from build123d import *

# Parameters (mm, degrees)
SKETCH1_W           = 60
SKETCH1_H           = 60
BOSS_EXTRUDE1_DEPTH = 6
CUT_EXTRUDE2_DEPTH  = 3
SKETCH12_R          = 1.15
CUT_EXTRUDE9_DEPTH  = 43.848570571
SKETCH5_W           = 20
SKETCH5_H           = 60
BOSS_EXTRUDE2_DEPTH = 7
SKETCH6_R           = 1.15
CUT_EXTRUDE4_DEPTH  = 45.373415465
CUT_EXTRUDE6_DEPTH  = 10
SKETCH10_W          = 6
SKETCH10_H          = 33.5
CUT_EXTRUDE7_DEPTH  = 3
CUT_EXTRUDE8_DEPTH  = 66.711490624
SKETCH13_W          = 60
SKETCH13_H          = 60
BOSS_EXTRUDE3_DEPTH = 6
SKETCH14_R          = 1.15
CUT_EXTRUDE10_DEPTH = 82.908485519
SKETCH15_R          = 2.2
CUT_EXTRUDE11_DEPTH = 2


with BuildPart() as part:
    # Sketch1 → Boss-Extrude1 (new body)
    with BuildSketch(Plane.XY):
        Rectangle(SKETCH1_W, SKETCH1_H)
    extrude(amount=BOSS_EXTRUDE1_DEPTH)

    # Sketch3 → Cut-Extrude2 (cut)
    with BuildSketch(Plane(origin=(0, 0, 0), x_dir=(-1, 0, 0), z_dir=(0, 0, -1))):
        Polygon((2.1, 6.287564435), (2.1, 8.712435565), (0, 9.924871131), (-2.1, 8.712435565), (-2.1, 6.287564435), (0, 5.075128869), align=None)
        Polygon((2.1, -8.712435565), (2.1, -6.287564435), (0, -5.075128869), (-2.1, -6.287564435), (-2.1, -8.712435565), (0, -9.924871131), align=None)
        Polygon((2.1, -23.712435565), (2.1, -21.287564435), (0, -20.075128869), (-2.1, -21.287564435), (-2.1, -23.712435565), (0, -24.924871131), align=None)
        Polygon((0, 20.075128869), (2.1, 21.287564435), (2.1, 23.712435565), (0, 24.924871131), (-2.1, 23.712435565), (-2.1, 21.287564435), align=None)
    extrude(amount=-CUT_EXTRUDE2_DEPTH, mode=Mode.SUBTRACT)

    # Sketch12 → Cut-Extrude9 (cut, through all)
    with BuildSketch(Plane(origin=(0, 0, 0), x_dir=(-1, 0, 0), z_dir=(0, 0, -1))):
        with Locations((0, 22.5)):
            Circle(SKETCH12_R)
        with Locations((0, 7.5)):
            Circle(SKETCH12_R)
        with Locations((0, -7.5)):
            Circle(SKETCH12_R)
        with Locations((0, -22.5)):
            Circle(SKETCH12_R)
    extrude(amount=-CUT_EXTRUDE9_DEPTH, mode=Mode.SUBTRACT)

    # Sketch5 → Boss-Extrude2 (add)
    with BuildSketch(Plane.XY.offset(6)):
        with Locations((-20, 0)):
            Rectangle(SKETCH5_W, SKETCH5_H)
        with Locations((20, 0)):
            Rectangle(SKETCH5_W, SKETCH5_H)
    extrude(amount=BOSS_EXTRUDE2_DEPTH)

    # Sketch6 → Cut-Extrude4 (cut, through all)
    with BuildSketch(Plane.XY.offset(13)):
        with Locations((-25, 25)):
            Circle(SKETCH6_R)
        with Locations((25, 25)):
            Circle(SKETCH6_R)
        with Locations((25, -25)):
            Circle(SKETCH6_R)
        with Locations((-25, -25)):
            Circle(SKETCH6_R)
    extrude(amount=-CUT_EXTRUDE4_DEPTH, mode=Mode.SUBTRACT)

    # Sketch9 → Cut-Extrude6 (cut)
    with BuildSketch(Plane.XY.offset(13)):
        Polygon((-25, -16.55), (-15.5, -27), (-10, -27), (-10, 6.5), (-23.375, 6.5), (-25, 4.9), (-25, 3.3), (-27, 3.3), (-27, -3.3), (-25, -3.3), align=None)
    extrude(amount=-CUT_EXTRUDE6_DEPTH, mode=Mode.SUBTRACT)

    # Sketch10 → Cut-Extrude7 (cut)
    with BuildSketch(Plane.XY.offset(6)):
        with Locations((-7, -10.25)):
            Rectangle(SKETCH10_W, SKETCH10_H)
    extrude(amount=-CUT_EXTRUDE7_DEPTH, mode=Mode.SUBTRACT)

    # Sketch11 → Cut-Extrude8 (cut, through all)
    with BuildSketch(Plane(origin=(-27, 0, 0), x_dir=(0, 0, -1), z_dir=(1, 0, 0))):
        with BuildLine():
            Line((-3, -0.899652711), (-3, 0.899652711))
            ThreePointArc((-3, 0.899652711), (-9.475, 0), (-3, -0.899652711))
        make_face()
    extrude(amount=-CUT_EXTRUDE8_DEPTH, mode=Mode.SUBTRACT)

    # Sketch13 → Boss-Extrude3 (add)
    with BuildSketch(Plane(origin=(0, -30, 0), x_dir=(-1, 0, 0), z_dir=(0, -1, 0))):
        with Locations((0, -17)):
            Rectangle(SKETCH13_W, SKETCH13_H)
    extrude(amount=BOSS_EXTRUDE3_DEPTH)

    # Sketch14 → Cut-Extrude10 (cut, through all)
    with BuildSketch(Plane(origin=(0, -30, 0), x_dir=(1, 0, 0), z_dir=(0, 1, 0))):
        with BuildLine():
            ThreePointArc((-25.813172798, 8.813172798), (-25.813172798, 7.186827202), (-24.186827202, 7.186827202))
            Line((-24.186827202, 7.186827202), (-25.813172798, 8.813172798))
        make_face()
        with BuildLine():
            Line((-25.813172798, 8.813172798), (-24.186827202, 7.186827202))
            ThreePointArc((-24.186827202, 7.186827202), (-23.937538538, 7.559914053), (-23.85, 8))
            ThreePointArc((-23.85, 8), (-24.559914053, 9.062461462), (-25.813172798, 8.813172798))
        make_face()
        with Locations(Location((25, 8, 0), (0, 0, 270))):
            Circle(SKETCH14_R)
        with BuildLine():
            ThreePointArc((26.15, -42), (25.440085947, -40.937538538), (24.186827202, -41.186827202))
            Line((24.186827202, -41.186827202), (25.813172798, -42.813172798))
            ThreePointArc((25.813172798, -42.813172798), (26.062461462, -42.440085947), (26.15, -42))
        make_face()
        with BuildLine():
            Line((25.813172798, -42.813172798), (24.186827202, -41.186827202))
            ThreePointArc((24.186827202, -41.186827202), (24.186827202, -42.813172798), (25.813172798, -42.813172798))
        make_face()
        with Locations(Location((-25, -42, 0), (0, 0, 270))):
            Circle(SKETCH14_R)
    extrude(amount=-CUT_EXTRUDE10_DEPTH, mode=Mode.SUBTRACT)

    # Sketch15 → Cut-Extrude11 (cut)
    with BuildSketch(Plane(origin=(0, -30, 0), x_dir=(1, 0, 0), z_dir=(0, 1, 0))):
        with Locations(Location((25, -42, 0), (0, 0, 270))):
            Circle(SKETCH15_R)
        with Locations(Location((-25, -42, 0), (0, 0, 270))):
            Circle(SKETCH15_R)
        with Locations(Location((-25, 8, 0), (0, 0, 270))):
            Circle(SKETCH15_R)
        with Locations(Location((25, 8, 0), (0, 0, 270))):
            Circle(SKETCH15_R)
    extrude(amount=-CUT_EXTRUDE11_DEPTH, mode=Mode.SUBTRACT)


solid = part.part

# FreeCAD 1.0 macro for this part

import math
import FreeCAD as App
import Part
import Sketcher
Q = App.Units.Quantity


def add_polygon(sketch, points):
    """Adds a closed chain of lines whose ends are joined by coincident constraints."""
    first, n = sketch.GeometryCount, len(points)
    for a, b in zip(points, points[1:] + points[:1]):
        sketch.addGeometry(Part.LineSegment(App.Vector(*a, 0), App.Vector(*b, 0)), False)
    for i in range(n):
        sketch.addConstraint(Sketcher.Constraint("Coincident", first + i, 2, first + (i + 1) % n, 1))

doc = App.newDocument("Part")
body = doc.addObject("PartDesign::Body", "Body")

# Sketch on XY plane
sketch1 = body.newObject("Sketcher::SketchObject", "Sketch")
sketch1.AttachmentSupport = (doc.getObject("XY_Plane"), [""])
sketch1.MapMode = "FlatFace"
add_polygon(sketch1, [(-30, 30), (-30, -30), (30, -30), (30, 30)])  # lines 0-3
sketch1.addConstraint(Sketcher.Constraint("Vertical", 0))
sketch1.addConstraint(Sketcher.Constraint("Horizontal", 1))
sketch1.addConstraint(Sketcher.Constraint("Vertical", 2))
sketch1.addConstraint(Sketcher.Constraint("Horizontal", 3))
sketch1.addConstraint(Sketcher.Constraint("Symmetric", 0, 2, 2, 2, -1, 1))
sketch1.addConstraint(Sketcher.Constraint("Equal", 3, 0))
sketch1.addConstraint(Sketcher.Constraint("DistanceX", 1, 1, 1, 2, 60.0))
pad1 = body.newObject("PartDesign::Pad", "Pad")
pad1.Profile = sketch1
pad1.Length = 6

# Sketch on XY plane
sketch2 = body.newObject("Sketcher::SketchObject", "Sketch001")
sketch2.AttachmentSupport = (doc.getObject("XY_Plane"), [""])
sketch2.MapMode = "FlatFace"
add_polygon(sketch2, [(-2.1, 6.3), (-2.1, 8.7), (0, 9.9), (2.1, 8.7), (2.1, 6.3), (0, 5.1)])  # lines 0-5
add_polygon(sketch2, [(-2.1, -8.7), (-2.1, -6.3), (0, -5.1), (2.1, -6.3), (2.1, -8.7), (0, -9.9)])  # lines 6-11
add_polygon(sketch2, [(-2.1, -23.7), (-2.1, -21.3), (0, -20.1), (2.1, -21.3), (2.1, -23.7), (0, -24.9)])  # lines 12-17
add_polygon(sketch2, [(0, 20.1), (-2.1, 21.3), (-2.1, 23.7), (0, 24.9), (2.1, 23.7), (2.1, 21.3)])  # lines 18-23
sketch2.addConstraint(Sketcher.Constraint("Vertical", 0))
sketch2.addConstraint(Sketcher.Constraint("Vertical", 3))
sketch2.addConstraint(Sketcher.Constraint("Vertical", 6))
sketch2.addConstraint(Sketcher.Constraint("Vertical", 9))
sketch2.addConstraint(Sketcher.Constraint("Vertical", 12))
sketch2.addConstraint(Sketcher.Constraint("Vertical", 15))
sketch2.addConstraint(Sketcher.Constraint("Vertical", 19))
sketch2.addConstraint(Sketcher.Constraint("Vertical", 22))
sketch2.addConstraint(Sketcher.Constraint("Symmetric", 3, 2, 6, 2, -1, 1))
sketch2.addConstraint(Sketcher.Constraint("Symmetric", 4, 2, 7, 2, -1, 1))
sketch2.addConstraint(Sketcher.Constraint("Symmetric", 5, 2, 8, 2, -1, 1))
sketch2.addConstraint(Sketcher.Constraint("Symmetric", 1, 2, 10, 2, -1, 1))
sketch2.addConstraint(Sketcher.Constraint("Symmetric", 14, 2, 18, 2, -1, 1))
sketch2.addConstraint(Sketcher.Constraint("Symmetric", 16, 2, 20, 2, -1, 1))
sketch2.addConstraint(Sketcher.Constraint("Symmetric", 17, 2, 21, 2, -1, 1))
sketch2.addConstraint(Sketcher.Constraint("Symmetric", 13, 2, 23, 2, -1, 1))
sketch2.addConstraint(Sketcher.Constraint("Symmetric", 0, 2, 2, 2, -2))
sketch2.addConstraint(Sketcher.Constraint("Symmetric", 12, 2, 14, 2, -2))
sketch2.addConstraint(Sketcher.Constraint("PointOnObject", 1, 2, -2))
sketch2.addConstraint(Sketcher.Constraint("PointOnObject", 4, 2, -2))
sketch2.addConstraint(Sketcher.Constraint("PointOnObject", 13, 2, -2))
sketch2.addConstraint(Sketcher.Constraint("PointOnObject", 16, 2, -2))
sketch2.addConstraint(Sketcher.Constraint("Parallel", 1, 4))
sketch2.addConstraint(Sketcher.Constraint("Parallel", 2, 5))
sketch2.addConstraint(Sketcher.Constraint("Parallel", 7, 10))
sketch2.addConstraint(Sketcher.Constraint("Parallel", 8, 11))
sketch2.addConstraint(Sketcher.Constraint("Parallel", 10, 13))
sketch2.addConstraint(Sketcher.Constraint("Parallel", 13, 16))
sketch2.addConstraint(Sketcher.Constraint("Parallel", 14, 17))
sketch2.addConstraint(Sketcher.Constraint("Parallel", 16, 20))
sketch2.addConstraint(Sketcher.Constraint("Parallel", 20, 23))
sketch2.addConstraint(Sketcher.Constraint("Vertical", 11, 2, 12, 2))
sketch2.addConstraint(Sketcher.Constraint("Equal", 9, 12))
sketch2.addConstraint(Sketcher.Constraint("Angle", 1, Q("30 deg")))
sketch2.addConstraint(Sketcher.Constraint("DistanceY", 6, 2, 0, 2, 15.0))
sketch2.addConstraint(Sketcher.Constraint("DistanceY", 12, 2, 6, 2, 15.0))
sketch2.addConstraint(Sketcher.Constraint("DistanceX", 0, 2, -1, 1, 2.1))
sketch2.addConstraint(Sketcher.Constraint("DistanceY", 0, 1, 0, 2, 2.424871))
pocket1 = body.newObject("PartDesign::Pocket", "Pocket")
pocket1.Profile = sketch2
pocket1.Length = 3
pocket1.Reversed = True

# Sketch on XY plane
sketch3 = body.newObject("Sketcher::SketchObject", "Sketch002")
sketch3.AttachmentSupport = (doc.getObject("XY_Plane"), [""])
sketch3.MapMode = "FlatFace"
sketch3.addGeometry(Part.Circle(App.Vector(0, 22.5, 0), App.Vector(0, 0, 1), 1.1), False)
sketch3.addGeometry(Part.Circle(App.Vector(0, 7.5, 0), App.Vector(0, 0, 1), 1.1), False)
sketch3.addGeometry(Part.Circle(App.Vector(0, -7.5, 0), App.Vector(0, 0, 1), 1.1), False)
sketch3.addGeometry(Part.Circle(App.Vector(0, -22.5, 0), App.Vector(0, 0, 1), 1.1), False)
sketch3.addConstraint(Sketcher.Constraint("Equal", 0, 1))
sketch3.addConstraint(Sketcher.Constraint("Equal", 1, 2))
sketch3.addConstraint(Sketcher.Constraint("Equal", 2, 3))
sketch3.addConstraint(Sketcher.Constraint("Symmetric", 1, 3, 2, 3, -1, 1))
sketch3.addConstraint(Sketcher.Constraint("Symmetric", 0, 3, 3, 3, -1, 1))
sketch3.addConstraint(Sketcher.Constraint("PointOnObject", 0, 3, -2))
sketch3.addConstraint(Sketcher.Constraint("PointOnObject", 1, 3, -2))
sketch3.addConstraint(Sketcher.Constraint("Diameter", 0, 2.3))
sketch3.addConstraint(Sketcher.Constraint("DistanceY", 1, 3, 0, 3, 15.0))
sketch3.addConstraint(Sketcher.Constraint("DistanceY", 2, 3, 1, 3, 15.0))
pocket2 = body.newObject("PartDesign::Pocket", "Pocket001")
pocket2.Profile = sketch3
pocket2.Type = "ThroughAll"
pocket2.Reversed = True

# Sketch on XY plane
sketch4 = body.newObject("Sketcher::SketchObject", "Sketch003")
sketch4.AttachmentSupport = (doc.getObject("XY_Plane"), [""])
sketch4.MapMode = "FlatFace"
sketch4.AttachmentOffset = App.Placement(App.Vector(0, 0, 6), App.Rotation())
add_polygon(sketch4, [(-30, 30), (-30, -30), (-10, -30), (-10, 30)])  # lines 0-3
add_polygon(sketch4, [(10, 30), (10, -30), (30, -30), (30, 30)])  # lines 4-7
sketch4.addConstraint(Sketcher.Constraint("Vertical", 0))
sketch4.addConstraint(Sketcher.Constraint("Horizontal", 1))
sketch4.addConstraint(Sketcher.Constraint("Vertical", 2))
sketch4.addConstraint(Sketcher.Constraint("Horizontal", 3))
sketch4.addConstraint(Sketcher.Constraint("Vertical", 4))
sketch4.addConstraint(Sketcher.Constraint("Horizontal", 5))
sketch4.addConstraint(Sketcher.Constraint("Vertical", 6))
sketch4.addConstraint(Sketcher.Constraint("Horizontal", 7))
sketch4.addConstraint(Sketcher.Constraint("Symmetric", 2, 2, 4, 2, -1, 1))
sketch4.addConstraint(Sketcher.Constraint("Symmetric", 0, 2, 6, 2, -1, 1))
sketch4.addConstraint(Sketcher.Constraint("Horizontal", 1, 2, 4, 2))
sketch4.addConstraint(Sketcher.Constraint("DistanceX", 1, 1, 1, 2, 20.0))
sketch4.addConstraint(Sketcher.Constraint("DistanceY", 0, 2, 0, 1, 60.0))
sketch4.addConstraint(Sketcher.Constraint("DistanceX", 0, 2, -1, 1, 30.0))
pad2 = body.newObject("PartDesign::Pad", "Pad001")
pad2.Profile = sketch4
pad2.Length = 7

# Sketch on XY plane
sketch5 = body.newObject("Sketcher::SketchObject", "Sketch004")
sketch5.AttachmentSupport = (doc.getObject("XY_Plane"), [""])
sketch5.MapMode = "FlatFace"
sketch5.AttachmentOffset = App.Placement(App.Vector(0, 0, 13), App.Rotation())
sketch5.addGeometry(Part.Circle(App.Vector(-25, 25, 0), App.Vector(0, 0, 1), 1.1), False)
sketch5.addGeometry(Part.Circle(App.Vector(25, 25, 0), App.Vector(0, 0, 1), 1.1), False)
sketch5.addGeometry(Part.Circle(App.Vector(25, -25, 0), App.Vector(0, 0, 1), 1.1), False)
sketch5.addGeometry(Part.Circle(App.Vector(-25, -25, 0), App.Vector(0, 0, 1), 1.1), False)
sketch5.addConstraint(Sketcher.Constraint("Equal", 0, 1))
sketch5.addConstraint(Sketcher.Constraint("Equal", 1, 2))
sketch5.addConstraint(Sketcher.Constraint("Equal", 2, 3))
sketch5.addConstraint(Sketcher.Constraint("Symmetric", 0, 3, 2, 3, -1, 1))
sketch5.addConstraint(Sketcher.Constraint("Symmetric", 1, 3, 3, 3, -1, 1))
sketch5.addConstraint(Sketcher.Constraint("Symmetric", 0, 3, 1, 3, -2))
sketch5.addConstraint(Sketcher.Constraint("Diameter", 0, 2.3))
sketch5.addConstraint(Sketcher.Constraint("DistanceX", 0, 3, -1, 1, 25.0))
sketch5.addConstraint(Sketcher.Constraint("DistanceY", -1, 1, 0, 3, 25.0))
pocket3 = body.newObject("PartDesign::Pocket", "Pocket002")
pocket3.Profile = sketch5
pocket3.Type = "ThroughAll"

# Sketch on XY plane
sketch6 = body.newObject("Sketcher::SketchObject", "Sketch005")
sketch6.AttachmentSupport = (doc.getObject("XY_Plane"), [""])
sketch6.MapMode = "FlatFace"
sketch6.AttachmentOffset = App.Placement(App.Vector(0, 0, 13), App.Rotation())
add_polygon(sketch6, [(-25, -16.6), (-15.5, -27), (-10, -27), (-10, 6.5), (-23.4, 6.5), (-25, 4.9), (-25, 3.3), (-27, 3.3), (-27, -3.3), (-25, -3.3)])  # lines 0-9
sketch6.addConstraint(Sketcher.Constraint("Horizontal", 1))
sketch6.addConstraint(Sketcher.Constraint("Vertical", 2))
sketch6.addConstraint(Sketcher.Constraint("Horizontal", 3))
sketch6.addConstraint(Sketcher.Constraint("Vertical", 5))
sketch6.addConstraint(Sketcher.Constraint("Horizontal", 6))
sketch6.addConstraint(Sketcher.Constraint("Vertical", 7))
sketch6.addConstraint(Sketcher.Constraint("Horizontal", 8))
sketch6.addConstraint(Sketcher.Constraint("Vertical", 9))
sketch6.addConstraint(Sketcher.Constraint("Symmetric", 5, 2, 8, 2, -1))
sketch6.addConstraint(Sketcher.Constraint("DistanceX", 6, 2, 6, 1, 2.0))
sketch6.addConstraint(Sketcher.Constraint("DistanceX", 1, 1, 1, 2, 5.5))
sketch6.addConstraint(Sketcher.Constraint("DistanceY", 2, 1, 2, 2, 33.5))
sketch6.addConstraint(Sketcher.Constraint("DistanceY", 5, 2, 5, 1, 1.6))
sketch6.addConstraint(Sketcher.Constraint("DistanceY", 7, 2, 7, 1, 6.6))
sketch6.addConstraint(Sketcher.Constraint("DistanceY", 0, 2, -1, 1, 27.0))
sketch6.addConstraint(Sketcher.Constraint("DistanceX", 1, 2, -1, 1, 10.0))
sketch6.addConstraint(Sketcher.Constraint("DistanceX", 4, 2, -1, 1, 25.0))
sketch6.addConstraint(Sketcher.Constraint("DistanceY", 9, 2, 9, 1, 13.25))
sketch6.addConstraint(Sketcher.Constraint("DistanceX", 3, 2, 3, 1, 13.375))
pocket4 = body.newObject("PartDesign::Pocket", "Pocket003")
pocket4.Profile = sketch6
pocket4.Length = 10

# Sketch on XY plane
sketch7 = body.newObject("Sketcher::SketchObject", "Sketch006")
sketch7.AttachmentSupport = (doc.getObject("XY_Plane"), [""])
sketch7.MapMode = "FlatFace"
sketch7.AttachmentOffset = App.Placement(App.Vector(0, 0, 6), App.Rotation())
add_polygon(sketch7, [(-10, 6), (-10, -27), (-4, -27), (-4, 6)])  # lines 0-3
sketch7.addConstraint(Sketcher.Constraint("Vertical", 0))
sketch7.addConstraint(Sketcher.Constraint("Horizontal", 1))
sketch7.addConstraint(Sketcher.Constraint("Vertical", 2))
sketch7.addConstraint(Sketcher.Constraint("Horizontal", 3))
sketch7.addConstraint(Sketcher.Constraint("DistanceX", 1, 1, 1, 2, 6.0))
sketch7.addConstraint(Sketcher.Constraint("DistanceY", 0, 2, 0, 1, 33.5))
sketch7.addConstraint(Sketcher.Constraint("DistanceX", 0, 2, -1, 1, 10.0))
sketch7.addConstraint(Sketcher.Constraint("DistanceY", 0, 2, -1, 1, 27.0))
pocket5 = body.newObject("PartDesign::Pocket", "Pocket004")
pocket5.Profile = sketch7
pocket5.Length = 3

# Sketch on YZ plane
sketch8 = body.newObject("Sketcher::SketchObject", "Sketch007")
sketch8.AttachmentSupport = (doc.getObject("YZ_Plane"), [""])
sketch8.MapMode = "FlatFace"
sketch8.AttachmentOffset = App.Placement(App.Vector(0, 0, -27), App.Rotation())
sketch8.addGeometry(Part.LineSegment(App.Vector(-0.9, 3, 0), App.Vector(0.9, 3, 0)), False)
sketch8.addGeometry(Part.ArcOfCircle(Part.Circle(App.Vector(0, 6.2, 0), App.Vector(0, 0, 1), 3.3), math.radians(-74), math.radians(254)), False)
sketch8.addConstraint(Sketcher.Constraint("Coincident", 0, 1, 1, 2))
sketch8.addConstraint(Sketcher.Constraint("Coincident", 1, 1, 0, 2))
sketch8.addConstraint(Sketcher.Constraint("Horizontal", 0))
sketch8.addConstraint(Sketcher.Constraint("PointOnObject", 1, 3, -2))
sketch8.addConstraint(Sketcher.Constraint("Radius", 1, 3.3))
sketch8.addConstraint(Sketcher.Constraint("DistanceY", -1, 1, 0, 1, 3.0))
sketch8.addConstraint(Sketcher.Constraint("DistanceY", -1, 1, 1, 3, 6.175))
pocket6 = body.newObject("PartDesign::Pocket", "Pocket005")
pocket6.Profile = sketch8
pocket6.Type = "ThroughAll"

# Sketch on XZ plane
sketch9 = body.newObject("Sketcher::SketchObject", "Sketch008")
sketch9.AttachmentSupport = (doc.getObject("XZ_Plane"), [""])
sketch9.MapMode = "FlatFace"
sketch9.AttachmentOffset = App.Placement(App.Vector(0, 0, 30), App.Rotation())
add_polygon(sketch9, [(30, -13), (30, 47), (-30, 47), (-30, -13)])  # lines 0-3
sketch9.addConstraint(Sketcher.Constraint("Vertical", 0))
sketch9.addConstraint(Sketcher.Constraint("Horizontal", 1))
sketch9.addConstraint(Sketcher.Constraint("Vertical", 2))
sketch9.addConstraint(Sketcher.Constraint("Horizontal", 3))
sketch9.addConstraint(Sketcher.Constraint("Equal", 3, 0))
sketch9.addConstraint(Sketcher.Constraint("DistanceX", 1, 2, 1, 1, 60.0))
sketch9.addConstraint(Sketcher.Constraint("DistanceX", -1, 1, 0, 2, 30.0))
sketch9.addConstraint(Sketcher.Constraint("DistanceY", -1, 1, 0, 2, 47.0))
pad3 = body.newObject("PartDesign::Pad", "Pad002")
pad3.Profile = sketch9
pad3.Length = 6

# Sketch on XZ plane
sketch10 = body.newObject("Sketcher::SketchObject", "Sketch009")
sketch10.AttachmentSupport = (doc.getObject("XZ_Plane"), [""])
sketch10.MapMode = "FlatFace"
sketch10.AttachmentOffset = App.Placement(App.Vector(0, 0, 30), App.Rotation())
sketch10.addGeometry(Part.ArcOfCircle(Part.Circle(App.Vector(-25, -8, 0), App.Vector(0, 0, 1), 1.1), math.radians(45), math.radians(225)), False)
sketch10.addGeometry(Part.ArcOfCircle(Part.Circle(App.Vector(-25, -8, 0), App.Vector(0, 0, 1), 1.2), math.radians(0), math.radians(45)), False)
sketch10.addGeometry(Part.ArcOfCircle(Part.Circle(App.Vector(-25, -8, 0), App.Vector(0, 0, 1), 1.1), math.radians(-135), math.radians(0)), False)
sketch10.addGeometry(Part.Circle(App.Vector(25, -8, 0), App.Vector(0, 0, 1), 1.1), False)
sketch10.addGeometry(Part.ArcOfCircle(Part.Circle(App.Vector(25, 42, 0), App.Vector(0, 0, 1), 1.1), math.radians(-135), math.radians(0)), False)
sketch10.addGeometry(Part.ArcOfCircle(Part.Circle(App.Vector(25, 42, 0), App.Vector(0, 0, 1), 1.1), math.radians(45), math.radians(225)), False)
sketch10.addGeometry(Part.ArcOfCircle(Part.Circle(App.Vector(25, 42, 0), App.Vector(0, 0, 1), 1.2), math.radians(0), math.radians(45)), False)
sketch10.addGeometry(Part.Circle(App.Vector(-25, 42, 0), App.Vector(0, 0, 1), 1.1), False)
sketch10.addConstraint(Sketcher.Constraint("Tangent", 0, 1, 1, 2))
sketch10.addConstraint(Sketcher.Constraint("Tangent", 1, 1, 2, 2))
sketch10.addConstraint(Sketcher.Constraint("Tangent", 2, 1, 0, 2))
sketch10.addConstraint(Sketcher.Constraint("Tangent", 4, 1, 5, 2))
sketch10.addConstraint(Sketcher.Constraint("Tangent", 5, 1, 6, 2))
sketch10.addConstraint(Sketcher.Constraint("Tangent", 6, 1, 4, 2))
sketch10.addConstraint(Sketcher.Constraint("Equal", 2, 3))
sketch10.addConstraint(Sketcher.Constraint("Equal", 3, 4))
sketch10.addConstraint(Sketcher.Constraint("Equal", 6, 7))
sketch10.addConstraint(Sketcher.Constraint("Symmetric", 0, 3, 3, 3, -2))
sketch10.addConstraint(Sketcher.Constraint("Symmetric", 4, 3, 7, 3, -2))
sketch10.addConstraint(Sketcher.Constraint("Horizontal", 3, 3, 1, 1))
sketch10.addConstraint(Sketcher.Constraint("Horizontal", 7, 3, 6, 1))
sketch10.addConstraint(Sketcher.Constraint("Vertical", 3, 3, 4, 3))
sketch10.addConstraint(Sketcher.Constraint("Diameter", 3, 2.3))
sketch10.addConstraint(Sketcher.Constraint("DistanceX", 0, 3, -1, 1, 25.0))
sketch10.addConstraint(Sketcher.Constraint("DistanceY", 0, 3, -1, 1, 8.0))
sketch10.addConstraint(Sketcher.Constraint("DistanceY", -1, 1, 4, 3, 42.0))
sketch10.addConstraint(Sketcher.Constraint("DistanceX", 0, 1, -1, 1, 24.186827))
sketch10.addConstraint(Sketcher.Constraint("DistanceX", 2, 1, -1, 1, 25.813173))
sketch10.addConstraint(Sketcher.Constraint("DistanceX", -1, 1, 4, 1, 24.186827))
sketch10.addConstraint(Sketcher.Constraint("DistanceX", -1, 1, 5, 1, 25.813173))
pocket7 = body.newObject("PartDesign::Pocket", "Pocket006")
pocket7.Profile = sketch10
pocket7.Type = "ThroughAll"
pocket7.Reversed = True

# Sketch on XZ plane
sketch11 = body.newObject("Sketcher::SketchObject", "Sketch010")
sketch11.AttachmentSupport = (doc.getObject("XZ_Plane"), [""])
sketch11.MapMode = "FlatFace"
sketch11.AttachmentOffset = App.Placement(App.Vector(0, 0, 30), App.Rotation())
sketch11.addGeometry(Part.Circle(App.Vector(25, 42, 0), App.Vector(0, 0, 1), 2.2), False)
sketch11.addGeometry(Part.Circle(App.Vector(-25, 42, 0), App.Vector(0, 0, 1), 2.2), False)
sketch11.addGeometry(Part.Circle(App.Vector(-25, -8, 0), App.Vector(0, 0, 1), 2.2), False)
sketch11.addGeometry(Part.Circle(App.Vector(25, -8, 0), App.Vector(0, 0, 1), 2.2), False)
sketch11.addConstraint(Sketcher.Constraint("Equal", 0, 1))
sketch11.addConstraint(Sketcher.Constraint("Equal", 1, 2))
sketch11.addConstraint(Sketcher.Constraint("Equal", 2, 3))
sketch11.addConstraint(Sketcher.Constraint("Symmetric", 0, 3, 1, 3, -2))
sketch11.addConstraint(Sketcher.Constraint("Symmetric", 2, 3, 3, 3, -2))
sketch11.addConstraint(Sketcher.Constraint("Vertical", 1, 3, 2, 3))
sketch11.addConstraint(Sketcher.Constraint("Diameter", 0, 4.4))
sketch11.addConstraint(Sketcher.Constraint("DistanceX", -1, 1, 0, 3, 25.0))
sketch11.addConstraint(Sketcher.Constraint("DistanceY", -1, 1, 0, 3, 42.0))
sketch11.addConstraint(Sketcher.Constraint("DistanceY", 2, 3, -1, 1, 8.0))
pocket8 = body.newObject("PartDesign::Pocket", "Pocket007")
pocket8.Profile = sketch11
pocket8.Length = 2
pocket8.Reversed = True

doc.recompute()
